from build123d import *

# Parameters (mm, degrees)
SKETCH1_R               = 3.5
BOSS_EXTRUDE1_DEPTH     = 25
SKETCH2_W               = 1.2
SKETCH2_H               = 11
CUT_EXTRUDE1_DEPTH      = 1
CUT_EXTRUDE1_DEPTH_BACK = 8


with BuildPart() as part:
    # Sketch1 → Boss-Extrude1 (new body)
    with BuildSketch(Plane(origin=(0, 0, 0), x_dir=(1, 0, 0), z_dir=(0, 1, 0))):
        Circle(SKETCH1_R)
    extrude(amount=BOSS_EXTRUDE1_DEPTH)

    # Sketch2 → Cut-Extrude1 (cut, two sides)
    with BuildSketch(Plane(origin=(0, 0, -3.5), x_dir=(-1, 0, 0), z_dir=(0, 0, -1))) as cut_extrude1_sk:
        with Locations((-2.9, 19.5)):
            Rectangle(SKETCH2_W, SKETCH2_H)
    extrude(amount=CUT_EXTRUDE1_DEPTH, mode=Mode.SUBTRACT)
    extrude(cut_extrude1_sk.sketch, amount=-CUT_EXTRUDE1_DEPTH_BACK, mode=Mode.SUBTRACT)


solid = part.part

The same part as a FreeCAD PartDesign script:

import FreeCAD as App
import Part
import Sketcher
Q = App.Units.Quantity

doc = App.newDocument("Part")
body = doc.addObject("PartDesign::Body", "Body")

# Sketch on XZ plane
sketch1 = body.newObject("Sketcher::SketchObject", "Sketch")
sketch1.AttachmentSupport = (doc.getObject("XZ_Plane"), [""])
sketch1.MapMode = "FlatFace"
sketch1.addGeometry(Part.Circle(App.Vector(0, 0, 0), App.Vector(0, 0, 1), 3.5), False)
sketch1.addConstraint([
    Sketcher.Constraint("Coincident", 0, 3, -1, 1),
    Sketcher.Constraint("Diameter", 0, Q("7 mm")),
])
pad1 = body.newObject("PartDesign::Pad", "Pad")
pad1.Profile = sketch1
pad1.Length = 25
pad1.Reversed = True

# Sketch on XY plane
sketch2 = body.newObject("Sketcher::SketchObject", "Sketch001")
sketch2.AttachmentSupport = (doc.getObject("XY_Plane"), [""])
sketch2.MapMode = "FlatFace"
sketch2.AttachmentOffset = App.Placement(App.Vector(0, 0, -3.5), App.Rotation())
sketch2.addGeometry([
    Part.LineSegment(App.Vector(3.5, 25, 0), App.Vector(3.5, 14, 0)),
    Part.LineSegment(App.Vector(3.5, 14, 0), App.Vector(2.3, 14, 0)),
    Part.LineSegment(App.Vector(2.3, 14, 0), App.Vector(2.3, 25, 0)),
    Part.LineSegment(App.Vector(2.3, 25, 0), App.Vector(3.5, 25, 0)),
], False)
sketch2.addConstraint([
    Sketcher.Constraint("Coincident", 0, 2, 1, 1),
    Sketcher.Constraint("Coincident", 1, 2, 2, 1),
    Sketcher.Constraint("Coincident", 2, 2, 3, 1),
    Sketcher.Constraint("Coincident", 3, 2, 0, 1),
    Sketcher.Constraint("Vertical", 0),
    Sketcher.Constraint("Horizontal", 1),
    Sketcher.Constraint("Vertical", 2),
    Sketcher.Constraint("Horizontal", 3),
    Sketcher.Constraint("DistanceY", 0, 2, 0, 1, Q("11 mm")),
    Sketcher.Constraint("DistanceX", 1, 2, 1, 1, Q("1.2 mm")),
    Sketcher.Constraint("DistanceY", -1, 1, 0, 2, Q("14 mm")),
    Sketcher.Constraint("DistanceX", -1, 1, 0, 2, Q("3.5 mm")),
])
pocket1 = body.newObject("PartDesign::Pocket", "Pocket")
pocket1.Profile = sketch2
pocket1.Type = "ThroughAll"
pocket1.Midplane = True

doc.recompute()
